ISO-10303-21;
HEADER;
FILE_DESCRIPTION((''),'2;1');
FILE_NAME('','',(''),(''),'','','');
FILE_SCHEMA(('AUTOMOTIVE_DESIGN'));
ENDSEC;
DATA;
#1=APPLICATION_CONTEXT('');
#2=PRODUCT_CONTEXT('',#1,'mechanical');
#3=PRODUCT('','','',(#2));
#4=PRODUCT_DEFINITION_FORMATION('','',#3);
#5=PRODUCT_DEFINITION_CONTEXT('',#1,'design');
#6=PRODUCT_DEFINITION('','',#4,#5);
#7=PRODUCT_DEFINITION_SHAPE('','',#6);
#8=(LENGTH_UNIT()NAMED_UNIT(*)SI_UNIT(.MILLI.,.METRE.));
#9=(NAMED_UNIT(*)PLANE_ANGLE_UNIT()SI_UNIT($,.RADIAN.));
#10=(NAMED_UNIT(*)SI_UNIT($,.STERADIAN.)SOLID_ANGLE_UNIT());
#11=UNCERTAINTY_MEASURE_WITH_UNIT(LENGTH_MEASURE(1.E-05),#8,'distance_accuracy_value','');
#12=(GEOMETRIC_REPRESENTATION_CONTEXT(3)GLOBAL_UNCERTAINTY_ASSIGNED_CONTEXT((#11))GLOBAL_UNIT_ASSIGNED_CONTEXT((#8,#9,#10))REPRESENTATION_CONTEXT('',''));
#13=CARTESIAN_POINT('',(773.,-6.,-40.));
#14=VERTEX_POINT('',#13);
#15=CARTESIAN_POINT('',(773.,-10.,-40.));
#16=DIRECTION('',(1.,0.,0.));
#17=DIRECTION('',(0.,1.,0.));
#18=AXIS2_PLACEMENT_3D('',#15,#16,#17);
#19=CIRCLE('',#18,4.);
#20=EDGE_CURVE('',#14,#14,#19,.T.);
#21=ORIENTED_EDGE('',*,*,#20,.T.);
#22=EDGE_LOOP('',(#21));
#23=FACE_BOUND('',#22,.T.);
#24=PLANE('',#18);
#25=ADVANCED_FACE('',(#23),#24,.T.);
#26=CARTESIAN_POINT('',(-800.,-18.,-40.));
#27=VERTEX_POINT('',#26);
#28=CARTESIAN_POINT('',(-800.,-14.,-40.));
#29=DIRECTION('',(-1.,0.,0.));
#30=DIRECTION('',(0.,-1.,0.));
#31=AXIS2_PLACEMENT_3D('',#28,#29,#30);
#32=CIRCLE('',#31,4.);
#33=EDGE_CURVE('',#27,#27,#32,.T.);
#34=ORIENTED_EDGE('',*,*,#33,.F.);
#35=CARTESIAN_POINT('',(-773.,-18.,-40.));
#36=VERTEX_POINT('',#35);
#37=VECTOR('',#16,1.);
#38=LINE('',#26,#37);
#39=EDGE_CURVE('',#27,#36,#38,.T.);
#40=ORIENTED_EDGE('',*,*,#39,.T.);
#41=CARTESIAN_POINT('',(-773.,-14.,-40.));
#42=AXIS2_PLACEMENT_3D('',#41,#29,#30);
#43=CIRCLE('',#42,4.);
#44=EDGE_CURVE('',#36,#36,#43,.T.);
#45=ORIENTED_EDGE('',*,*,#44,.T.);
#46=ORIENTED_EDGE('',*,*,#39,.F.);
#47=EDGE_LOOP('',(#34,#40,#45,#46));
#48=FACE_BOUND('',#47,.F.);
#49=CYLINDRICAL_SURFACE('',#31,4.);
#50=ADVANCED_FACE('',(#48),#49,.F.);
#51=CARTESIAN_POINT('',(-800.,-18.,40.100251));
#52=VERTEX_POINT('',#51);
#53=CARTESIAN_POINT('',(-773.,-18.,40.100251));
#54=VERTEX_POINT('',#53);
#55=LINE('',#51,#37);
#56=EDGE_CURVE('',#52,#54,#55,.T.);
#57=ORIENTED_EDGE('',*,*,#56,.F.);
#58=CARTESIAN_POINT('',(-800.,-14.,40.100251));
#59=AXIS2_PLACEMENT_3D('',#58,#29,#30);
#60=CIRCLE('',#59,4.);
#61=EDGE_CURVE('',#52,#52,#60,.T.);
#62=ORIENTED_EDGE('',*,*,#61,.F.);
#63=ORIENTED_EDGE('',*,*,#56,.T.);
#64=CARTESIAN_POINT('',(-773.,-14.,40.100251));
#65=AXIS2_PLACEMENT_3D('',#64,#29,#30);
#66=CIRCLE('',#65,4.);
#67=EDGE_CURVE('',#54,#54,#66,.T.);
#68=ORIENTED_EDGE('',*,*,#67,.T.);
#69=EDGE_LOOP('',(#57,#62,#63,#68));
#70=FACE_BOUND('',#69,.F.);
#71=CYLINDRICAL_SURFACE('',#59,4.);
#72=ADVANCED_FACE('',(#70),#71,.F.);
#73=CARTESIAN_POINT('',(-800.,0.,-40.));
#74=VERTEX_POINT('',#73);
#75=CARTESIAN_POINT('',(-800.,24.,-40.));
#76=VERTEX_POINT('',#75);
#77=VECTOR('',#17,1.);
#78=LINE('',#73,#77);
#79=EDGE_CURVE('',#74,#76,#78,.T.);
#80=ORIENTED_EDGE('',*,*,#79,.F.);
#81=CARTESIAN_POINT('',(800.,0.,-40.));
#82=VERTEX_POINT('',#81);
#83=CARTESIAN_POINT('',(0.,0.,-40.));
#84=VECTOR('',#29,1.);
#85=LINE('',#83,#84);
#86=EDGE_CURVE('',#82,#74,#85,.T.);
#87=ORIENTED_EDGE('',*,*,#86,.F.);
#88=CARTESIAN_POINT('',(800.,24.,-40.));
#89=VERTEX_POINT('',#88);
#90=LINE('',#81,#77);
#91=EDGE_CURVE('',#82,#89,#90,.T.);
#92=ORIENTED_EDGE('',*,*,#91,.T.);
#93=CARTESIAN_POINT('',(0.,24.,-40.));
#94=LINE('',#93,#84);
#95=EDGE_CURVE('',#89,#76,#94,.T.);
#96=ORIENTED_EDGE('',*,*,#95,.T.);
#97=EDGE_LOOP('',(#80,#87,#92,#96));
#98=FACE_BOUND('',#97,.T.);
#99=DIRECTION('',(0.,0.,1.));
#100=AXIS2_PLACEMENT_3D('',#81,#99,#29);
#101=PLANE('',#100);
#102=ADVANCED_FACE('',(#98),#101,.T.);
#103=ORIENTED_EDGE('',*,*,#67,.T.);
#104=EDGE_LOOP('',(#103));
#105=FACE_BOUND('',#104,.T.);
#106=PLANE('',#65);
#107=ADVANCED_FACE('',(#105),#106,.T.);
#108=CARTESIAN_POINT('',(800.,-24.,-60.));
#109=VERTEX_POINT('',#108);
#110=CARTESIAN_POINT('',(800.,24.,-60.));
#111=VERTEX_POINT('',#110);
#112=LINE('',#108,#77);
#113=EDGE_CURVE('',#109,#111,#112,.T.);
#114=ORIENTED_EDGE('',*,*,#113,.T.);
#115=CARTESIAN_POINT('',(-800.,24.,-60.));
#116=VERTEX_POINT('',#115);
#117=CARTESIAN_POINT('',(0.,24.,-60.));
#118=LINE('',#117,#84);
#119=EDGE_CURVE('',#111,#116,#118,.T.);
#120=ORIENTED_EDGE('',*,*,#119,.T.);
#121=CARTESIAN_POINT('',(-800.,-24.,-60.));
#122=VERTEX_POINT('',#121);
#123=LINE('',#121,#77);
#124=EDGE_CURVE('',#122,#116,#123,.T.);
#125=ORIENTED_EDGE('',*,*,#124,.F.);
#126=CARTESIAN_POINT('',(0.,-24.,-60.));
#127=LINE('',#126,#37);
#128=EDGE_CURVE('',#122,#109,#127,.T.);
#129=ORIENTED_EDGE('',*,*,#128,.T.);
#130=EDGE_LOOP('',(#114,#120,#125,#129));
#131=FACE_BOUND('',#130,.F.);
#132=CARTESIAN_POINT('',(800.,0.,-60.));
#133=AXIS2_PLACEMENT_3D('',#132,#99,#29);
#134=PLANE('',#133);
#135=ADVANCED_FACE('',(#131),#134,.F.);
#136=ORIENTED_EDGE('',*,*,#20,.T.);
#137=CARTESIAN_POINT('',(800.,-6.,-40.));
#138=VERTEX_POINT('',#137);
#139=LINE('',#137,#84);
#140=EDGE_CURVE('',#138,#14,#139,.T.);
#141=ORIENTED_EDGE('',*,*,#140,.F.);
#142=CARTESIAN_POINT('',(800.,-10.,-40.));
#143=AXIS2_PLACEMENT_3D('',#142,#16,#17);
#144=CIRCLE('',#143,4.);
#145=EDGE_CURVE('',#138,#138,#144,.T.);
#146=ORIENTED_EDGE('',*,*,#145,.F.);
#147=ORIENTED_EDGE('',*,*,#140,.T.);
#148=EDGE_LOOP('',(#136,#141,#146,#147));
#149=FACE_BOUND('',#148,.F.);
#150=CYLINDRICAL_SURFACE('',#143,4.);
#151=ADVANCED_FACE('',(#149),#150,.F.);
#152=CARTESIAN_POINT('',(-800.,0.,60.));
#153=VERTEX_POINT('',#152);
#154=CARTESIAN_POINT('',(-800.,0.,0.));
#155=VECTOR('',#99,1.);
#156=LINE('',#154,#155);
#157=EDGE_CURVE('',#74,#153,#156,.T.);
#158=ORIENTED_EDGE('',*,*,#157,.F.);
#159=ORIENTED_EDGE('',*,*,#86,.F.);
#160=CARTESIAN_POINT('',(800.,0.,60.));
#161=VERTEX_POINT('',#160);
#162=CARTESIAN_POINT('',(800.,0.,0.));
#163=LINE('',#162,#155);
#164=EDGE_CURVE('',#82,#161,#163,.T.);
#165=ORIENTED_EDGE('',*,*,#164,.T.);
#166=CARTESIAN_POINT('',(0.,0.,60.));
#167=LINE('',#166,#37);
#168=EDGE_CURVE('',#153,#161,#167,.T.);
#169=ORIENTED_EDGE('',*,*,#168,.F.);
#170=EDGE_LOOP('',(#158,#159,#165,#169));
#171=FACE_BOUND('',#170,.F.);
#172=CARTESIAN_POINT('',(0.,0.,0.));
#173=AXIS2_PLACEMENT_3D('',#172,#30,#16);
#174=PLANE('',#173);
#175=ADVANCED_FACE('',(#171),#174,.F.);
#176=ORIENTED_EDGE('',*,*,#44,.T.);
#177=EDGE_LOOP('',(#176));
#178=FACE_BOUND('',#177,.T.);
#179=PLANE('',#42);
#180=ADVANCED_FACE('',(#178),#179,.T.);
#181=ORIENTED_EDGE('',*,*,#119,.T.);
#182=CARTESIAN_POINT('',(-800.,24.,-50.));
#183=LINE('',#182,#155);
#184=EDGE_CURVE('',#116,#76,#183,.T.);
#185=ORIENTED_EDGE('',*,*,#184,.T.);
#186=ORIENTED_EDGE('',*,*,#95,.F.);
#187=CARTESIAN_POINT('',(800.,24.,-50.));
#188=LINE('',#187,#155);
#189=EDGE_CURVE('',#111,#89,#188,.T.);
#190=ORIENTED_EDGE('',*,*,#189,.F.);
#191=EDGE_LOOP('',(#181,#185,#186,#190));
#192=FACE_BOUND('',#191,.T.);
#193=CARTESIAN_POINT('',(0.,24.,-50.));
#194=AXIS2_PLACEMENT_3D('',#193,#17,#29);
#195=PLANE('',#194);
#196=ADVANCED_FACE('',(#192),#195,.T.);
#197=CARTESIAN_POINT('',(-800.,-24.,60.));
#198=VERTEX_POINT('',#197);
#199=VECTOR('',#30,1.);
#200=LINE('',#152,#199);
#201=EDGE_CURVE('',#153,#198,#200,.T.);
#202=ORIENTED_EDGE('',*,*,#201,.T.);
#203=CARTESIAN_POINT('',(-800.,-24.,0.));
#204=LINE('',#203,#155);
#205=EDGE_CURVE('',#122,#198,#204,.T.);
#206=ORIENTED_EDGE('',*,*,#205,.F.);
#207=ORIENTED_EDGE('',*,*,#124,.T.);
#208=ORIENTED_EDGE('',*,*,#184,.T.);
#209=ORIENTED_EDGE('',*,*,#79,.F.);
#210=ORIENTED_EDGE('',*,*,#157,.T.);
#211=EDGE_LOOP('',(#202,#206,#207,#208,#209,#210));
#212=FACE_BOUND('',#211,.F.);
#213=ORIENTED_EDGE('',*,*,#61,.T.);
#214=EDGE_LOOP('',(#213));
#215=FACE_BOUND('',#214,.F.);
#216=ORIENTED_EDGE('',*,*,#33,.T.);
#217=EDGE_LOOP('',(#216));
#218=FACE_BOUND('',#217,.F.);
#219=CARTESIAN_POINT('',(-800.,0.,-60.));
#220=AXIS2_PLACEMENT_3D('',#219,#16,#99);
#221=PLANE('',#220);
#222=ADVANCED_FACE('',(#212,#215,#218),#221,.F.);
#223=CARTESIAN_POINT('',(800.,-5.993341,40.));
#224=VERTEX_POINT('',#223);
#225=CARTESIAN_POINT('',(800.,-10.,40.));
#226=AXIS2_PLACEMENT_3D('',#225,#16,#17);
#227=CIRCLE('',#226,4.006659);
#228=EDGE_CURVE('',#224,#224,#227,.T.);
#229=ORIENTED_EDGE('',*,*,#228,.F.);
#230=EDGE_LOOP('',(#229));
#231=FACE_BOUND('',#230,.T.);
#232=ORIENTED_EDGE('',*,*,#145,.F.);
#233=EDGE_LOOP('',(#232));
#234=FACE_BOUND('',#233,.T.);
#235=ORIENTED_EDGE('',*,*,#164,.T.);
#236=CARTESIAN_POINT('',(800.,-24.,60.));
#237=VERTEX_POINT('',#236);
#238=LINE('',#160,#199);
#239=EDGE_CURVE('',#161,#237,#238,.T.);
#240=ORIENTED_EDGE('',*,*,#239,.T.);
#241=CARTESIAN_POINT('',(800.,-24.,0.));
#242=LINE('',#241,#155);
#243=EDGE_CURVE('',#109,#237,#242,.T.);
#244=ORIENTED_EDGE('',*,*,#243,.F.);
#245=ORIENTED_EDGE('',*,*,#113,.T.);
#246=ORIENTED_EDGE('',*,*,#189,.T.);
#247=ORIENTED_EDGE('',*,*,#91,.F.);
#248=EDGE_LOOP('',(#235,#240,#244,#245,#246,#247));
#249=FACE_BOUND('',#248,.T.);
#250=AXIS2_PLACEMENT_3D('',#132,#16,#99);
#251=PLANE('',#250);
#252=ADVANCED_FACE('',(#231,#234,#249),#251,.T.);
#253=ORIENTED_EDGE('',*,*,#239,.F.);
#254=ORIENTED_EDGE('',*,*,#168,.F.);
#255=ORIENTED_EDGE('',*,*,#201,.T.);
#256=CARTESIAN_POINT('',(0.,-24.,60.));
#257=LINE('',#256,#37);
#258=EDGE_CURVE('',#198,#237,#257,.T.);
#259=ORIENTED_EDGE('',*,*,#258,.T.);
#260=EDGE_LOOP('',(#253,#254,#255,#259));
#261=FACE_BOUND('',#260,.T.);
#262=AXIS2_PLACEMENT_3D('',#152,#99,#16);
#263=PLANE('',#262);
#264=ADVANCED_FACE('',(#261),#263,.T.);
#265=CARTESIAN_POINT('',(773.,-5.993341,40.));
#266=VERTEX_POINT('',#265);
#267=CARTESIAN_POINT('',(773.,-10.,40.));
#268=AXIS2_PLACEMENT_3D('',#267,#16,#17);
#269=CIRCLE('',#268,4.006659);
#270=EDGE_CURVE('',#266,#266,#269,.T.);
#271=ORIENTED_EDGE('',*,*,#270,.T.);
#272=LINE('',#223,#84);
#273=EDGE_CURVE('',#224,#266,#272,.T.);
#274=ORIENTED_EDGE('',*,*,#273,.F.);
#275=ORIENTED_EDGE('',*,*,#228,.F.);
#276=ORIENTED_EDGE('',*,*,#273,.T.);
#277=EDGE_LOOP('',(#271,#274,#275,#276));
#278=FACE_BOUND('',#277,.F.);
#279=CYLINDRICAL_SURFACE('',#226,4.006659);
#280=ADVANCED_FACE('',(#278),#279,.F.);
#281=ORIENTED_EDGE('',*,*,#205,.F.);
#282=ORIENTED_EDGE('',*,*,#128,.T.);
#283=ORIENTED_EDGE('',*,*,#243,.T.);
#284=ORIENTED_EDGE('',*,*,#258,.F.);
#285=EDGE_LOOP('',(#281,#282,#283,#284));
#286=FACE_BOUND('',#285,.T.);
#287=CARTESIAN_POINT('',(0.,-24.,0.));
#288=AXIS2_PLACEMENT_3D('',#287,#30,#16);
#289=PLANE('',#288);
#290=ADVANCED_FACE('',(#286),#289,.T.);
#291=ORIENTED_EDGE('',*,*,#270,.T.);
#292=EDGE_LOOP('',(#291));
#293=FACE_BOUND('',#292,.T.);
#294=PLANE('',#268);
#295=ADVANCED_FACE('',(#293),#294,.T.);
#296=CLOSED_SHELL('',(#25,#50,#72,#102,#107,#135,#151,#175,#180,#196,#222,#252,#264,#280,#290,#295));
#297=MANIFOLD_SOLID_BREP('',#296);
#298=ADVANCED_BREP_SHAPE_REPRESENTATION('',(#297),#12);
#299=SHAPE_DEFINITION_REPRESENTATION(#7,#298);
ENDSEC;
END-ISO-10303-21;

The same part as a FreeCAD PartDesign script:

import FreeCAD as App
import Part
import Sketcher
from FreeCAD import Vector
Q = App.Units.Quantity


def add_polygon(sketch, points):
    """Adds a closed chain of lines whose ends are joined by coincident constraints."""
    first, n = sketch.GeometryCount, len(points)
    for a, b in zip(points, points[1:] + points[:1]):
        sketch.addGeometry(Part.LineSegment(App.Vector(*a, 0), App.Vector(*b, 0)), False)
    for i in range(n):
        sketch.addConstraint(Sketcher.Constraint("Coincident", first + i, 2, first + (i + 1) % n, 1))

doc = App.newDocument("Part")
body = doc.addObject("PartDesign::Body", "Body")

# Sketch on XZ plane
sketch1 = body.newObject("Sketcher::SketchObject", "Sketch")
sketch1.AttachmentSupport = (doc.getObject("XZ_Plane"), [""])
sketch1.MapMode = "FlatFace"
add_polygon(sketch1, [(-800, 60), (-800, -60), (800, -60), (800, 60)])  # lines 0-3
sketch1.addConstraint([
    Sketcher.Constraint("Vertical", 0),
    Sketcher.Constraint("Horizontal", 1),
    Sketcher.Constraint("Vertical", 2),
    Sketcher.Constraint("Horizontal", 3),
    Sketcher.Constraint("Symmetric", 0, 2, 2, 2, -1, 1),
    Sketcher.Constraint("DistanceX", 1, 1, 1, 2, Q("1600 mm")),
    Sketcher.Constraint("DistanceY", 0, 2, 0, 1, Q("120 mm")),
])
pad1 = body.newObject("PartDesign::Pad", "Pad")
pad1.Profile = sketch1
pad1.Length = 24

# Sketch on YZ plane
sketch2 = body.newObject("Sketcher::SketchObject", "Sketch001")
sketch2.AttachmentSupport = (doc.getObject("YZ_Plane"), [""])
sketch2.MapMode = "FlatFace"
sketch2.AttachmentOffset = App.Placement(Vector(0, 0, 800), App.Rotation())
sketch2.addGeometry([
    Part.Circle(Vector(-10, 40, 0), Vector(0, 0, 1), 4),
    Part.Circle(Vector(-10, -40, 0), Vector(0, 0, 1), 4),
], False)
sketch2.addConstraint([
    Sketcher.Constraint("Symmetric", 0, 3, 1, 3, -1),
    Sketcher.Constraint("Diameter", 1, Q("8 mm")),
    Sketcher.Constraint("DistanceX", 0, 3, -1, 1, Q("10 mm")),
    Sketcher.Constraint("DistanceY", -1, 1, 0, 3, Q("40 mm")),
    Sketcher.Constraint("Diameter", 0, Q("8.013318 mm")),
])
pocket1 = body.newObject("PartDesign::Pocket", "Pocket")
pocket1.Profile = sketch2
pocket1.Length = 27

# Sketch on YZ plane
sketch3 = body.newObject("Sketcher::SketchObject", "Sketch002")
sketch3.AttachmentSupport = (doc.getObject("YZ_Plane"), [""])
sketch3.MapMode = "FlatFace"
sketch3.AttachmentOffset = App.Placement(Vector(0, 0, -800), App.Rotation())
sketch3.addGeometry([
    Part.Circle(Vector(-14, 40.1, 0), Vector(0, 0, 1), 4),
    Part.Circle(Vector(-14, -40, 0), Vector(0, 0, 1), 4),
], False)
sketch3.addConstraint([
    Sketcher.Constraint("Equal", 0, 1),
    Sketcher.Constraint("Vertical", 0, 3, 1, 3),
    Sketcher.Constraint("Diameter", 0, Q("8 mm")),
    Sketcher.Constraint("DistanceX", 0, 3, -1, 1, Q("14 mm")),
    Sketcher.Constraint("DistanceY", 1, 3, -1, 1, Q("40 mm")),
    Sketcher.Constraint("DistanceY", -1, 1, 0, 3, Q("40.100251 mm")),
])
pocket2 = body.newObject("PartDesign::Pocket", "Pocket001")
pocket2.Profile = sketch3
pocket2.Length = 27
pocket2.Reversed = True

# Sketch on XZ plane
sketch4 = body.newObject("Sketcher::SketchObject", "Sketch003")
sketch4.AttachmentSupport = (doc.getObject("XZ_Plane"), [""])
sketch4.MapMode = "FlatFace"
add_polygon(sketch4, [(800, -40), (800, -60), (-800, -60), (-800, -40)])  # lines 0-3
sketch4.addConstraint([
    Sketcher.Constraint("Vertical", 0),
    Sketcher.Constraint("Horizontal", 1),
    Sketcher.Constraint("Vertical", 2),
    Sketcher.Constraint("Horizontal", 3),
    Sketcher.Constraint("DistanceX", 1, 2, 1, 1, Q("1600 mm")),
    Sketcher.Constraint("DistanceY", 0, 2, 0, 1, Q("20 mm")),
    Sketcher.Constraint("DistanceX", -1, 1, 0, 2, Q("800 mm")),
    Sketcher.Constraint("DistanceY", 0, 2, -1, 1, Q("60 mm")),
])
pad2 = body.newObject("PartDesign::Pad", "Pad001")
pad2.Profile = sketch4
pad2.Length = 24
pad2.Reversed = True

doc.recompute()
